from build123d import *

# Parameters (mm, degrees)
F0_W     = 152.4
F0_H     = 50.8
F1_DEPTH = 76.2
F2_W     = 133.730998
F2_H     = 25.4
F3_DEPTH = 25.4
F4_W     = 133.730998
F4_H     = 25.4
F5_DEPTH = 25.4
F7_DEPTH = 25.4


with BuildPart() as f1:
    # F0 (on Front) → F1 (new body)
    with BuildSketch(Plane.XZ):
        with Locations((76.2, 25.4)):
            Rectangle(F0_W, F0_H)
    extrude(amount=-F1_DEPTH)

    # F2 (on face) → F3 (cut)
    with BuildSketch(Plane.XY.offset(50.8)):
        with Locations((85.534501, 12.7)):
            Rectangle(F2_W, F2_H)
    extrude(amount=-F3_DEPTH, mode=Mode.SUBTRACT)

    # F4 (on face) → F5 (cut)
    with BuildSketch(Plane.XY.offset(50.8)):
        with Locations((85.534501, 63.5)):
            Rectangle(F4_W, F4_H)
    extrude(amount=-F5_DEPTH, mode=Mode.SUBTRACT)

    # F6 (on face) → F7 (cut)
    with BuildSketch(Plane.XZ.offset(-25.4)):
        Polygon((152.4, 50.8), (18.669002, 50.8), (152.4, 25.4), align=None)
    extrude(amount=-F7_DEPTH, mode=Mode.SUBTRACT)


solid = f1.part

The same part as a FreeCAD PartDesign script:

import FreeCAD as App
import Part
import Sketcher

V = App.Vector
Q = App.Units.Quantity

doc = App.newDocument("Part")
params = doc.addObject("Spreadsheet::Sheet", "Params")
for row, (alias, value) in enumerate([
    ("sketch1_width", "6 in"),
    ("sketch1_height", "2 in"),
    ("pad1_length", "3 in"),
    ("sketch2_height", "1 in"),
    ("sketch2_width", "5.2649999 in"),
    ("pocket1_length", "1 in"),
    ("sketch3_height", "1 in"),
    ("sketch3_width", "5.2649999 in"),
    ("pocket2_length", "1 in"),
    ("sketch4_height", "1 in"),
    ("sketch4_width", "5.2649999 in"),
    ("pocket3_length", "1 in"),
], start=1):
    params.set(f"A{row}", alias)
    params.set(f"B{row}", "=" + value)
    params.setAlias(f"B{row}", alias)

body = doc.addObject("PartDesign::Body", "Body")

sketch1 = body.newObject("Sketcher::SketchObject", "Sketch")
sketch1.AttachmentSupport = (doc.getObject("XZ_Plane"), [""])
sketch1.MapMode = "FlatFace"
sketch1.addGeometry([
    Part.LineSegment(V(0, 51, 0), V(0, 0, 0)),
    Part.LineSegment(V(0, 0, 0), V(152, 0, 0)),
    Part.LineSegment(V(152, 0, 0), V(152, 51, 0)),
    Part.LineSegment(V(152, 51, 0), V(0, 51, 0)),
], False)
sketch1.addConstraint([
    Sketcher.Constraint("Coincident", 0, 2, 1, 1),
    Sketcher.Constraint("Coincident", 1, 2, 2, 1),
    Sketcher.Constraint("Coincident", 2, 2, 3, 1),
    Sketcher.Constraint("Coincident", 3, 2, 0, 1),
    Sketcher.Constraint("Vertical", 0),
    Sketcher.Constraint("Horizontal", 1),
    Sketcher.Constraint("Vertical", 2),
    Sketcher.Constraint("Horizontal", 3),
    Sketcher.Constraint("Coincident", 0, 2, -1, 1),
    Sketcher.Constraint("DistanceX", 1, 1, 1, 2, Q("6 in")),
    Sketcher.Constraint("DistanceY", 0, 2, 0, 1, Q("2 in")),
])
sketch1.setExpression("Constraints[9]", "Params.sketch1_width")
sketch1.setExpression("Constraints[10]", "Params.sketch1_height")
pad1 = body.newObject("PartDesign::Pad", "Pad")
pad1.Profile = sketch1
pad1.setExpression("Length", "Params.pad1_length")
pad1.Reversed = True

sketch2 = body.newObject("Sketcher::SketchObject", "Sketch001")
sketch2.AttachmentSupport = (doc.getObject("XY_Plane"), [""])
sketch2.MapMode = "FlatFace"
sketch2.AttachmentOffset = App.Placement(V(0, 0, 2 * 25.4), App.Rotation())
sketch2.addGeometry([
    Part.LineSegment(V(19, 25, 0), V(19, 0, 0)),
    Part.LineSegment(V(19, 0, 0), V(152, 0, 0)),
    Part.LineSegment(V(152, 0, 0), V(152, 25, 0)),
    Part.LineSegment(V(152, 25, 0), V(19, 25, 0)),
], False)
sketch2.addConstraint([
    Sketcher.Constraint("Coincident", 0, 2, 1, 1),
    Sketcher.Constraint("Coincident", 1, 2, 2, 1),
    Sketcher.Constraint("Coincident", 2, 2, 3, 1),
    Sketcher.Constraint("Coincident", 3, 2, 0, 1),
    Sketcher.Constraint("Vertical", 0),
    Sketcher.Constraint("Horizontal", 1),
    Sketcher.Constraint("Vertical", 2),
    Sketcher.Constraint("Horizontal", 3),
    Sketcher.Constraint("PointOnObject", 0, 2, -1),
    Sketcher.Constraint("DistanceY", 0, 2, 0, 1, Q("1 in")),
    Sketcher.Constraint("DistanceX", -1, 1, 1, 2, Q("6 in")),
    Sketcher.Constraint("DistanceX", 1, 1, 1, 2, Q("5.2649999 in")),
])
sketch2.setExpression("Constraints[9]", "Params.sketch2_height")
sketch2.setExpression("Constraints[11]", "Params.sketch2_width")
pocket1 = body.newObject("PartDesign::Pocket", "Pocket")
pocket1.Profile = sketch2
pocket1.setExpression("Length", "Params.pocket1_length")

sketch3 = body.newObject("Sketcher::SketchObject", "Sketch002")
sketch3.AttachmentSupport = (doc.getObject("XY_Plane"), [""])
sketch3.MapMode = "FlatFace"
sketch3.AttachmentOffset = App.Placement(V(0, 0, 2 * 25.4), App.Rotation())
sketch3.addGeometry([
    Part.LineSegment(V(19, 76, 0), V(19, 51, 0)),
    Part.LineSegment(V(19, 51, 0), V(152, 51, 0)),
    Part.LineSegment(V(152, 51, 0), V(152, 76, 0)),
    Part.LineSegment(V(152, 76, 0), V(19, 76, 0)),
], False)
sketch3.addConstraint([
    Sketcher.Constraint("Coincident", 0, 2, 1, 1),
    Sketcher.Constraint("Coincident", 1, 2, 2, 1),
    Sketcher.Constraint("Coincident", 2, 2, 3, 1),
    Sketcher.Constraint("Coincident", 3, 2, 0, 1),
    Sketcher.Constraint("Vertical", 0),
    Sketcher.Constraint("Horizontal", 1),
    Sketcher.Constraint("Vertical", 2),
    Sketcher.Constraint("Horizontal", 3),
    Sketcher.Constraint("DistanceY", 0, 2, 0, 1, Q("1 in")),
    Sketcher.Constraint("DistanceY", -1, 1, 0, 2, Q("2 in")),
    Sketcher.Constraint("DistanceX", -1, 1, 1, 2, Q("6 in")),
    Sketcher.Constraint("DistanceX", 1, 1, 1, 2, Q("5.2649999 in")),
])
sketch3.setExpression("Constraints[8]", "Params.sketch3_height")
sketch3.setExpression("Constraints[11]", "Params.sketch3_width")
pocket2 = body.newObject("PartDesign::Pocket", "Pocket001")
pocket2.Profile = sketch3
pocket2.setExpression("Length", "Params.pocket2_length")

sketch4 = body.newObject("Sketcher::SketchObject", "Sketch003")
sketch4.AttachmentSupport = (doc.getObject("XZ_Plane"), [""])
sketch4.MapMode = "FlatFace"
sketch4.AttachmentOffset = App.Placement(V(0, 0, -1 * 25.4), App.Rotation())
sketch4.addGeometry([
    Part.LineSegment(V(152, 51, 0), V(19, 51, 0)),
    Part.LineSegment(V(19, 51, 0), V(152, 25, 0)),
    Part.LineSegment(V(152, 25, 0), V(152, 51, 0)),
], False)
sketch4.addConstraint([
    Sketcher.Constraint("Coincident", 0, 2, 1, 1),
    Sketcher.Constraint("Coincident", 1, 2, 2, 1),
    Sketcher.Constraint("Coincident", 2, 2, 0, 1),
    Sketcher.Constraint("Horizontal", 0),
    Sketcher.Constraint("Vertical", 2),
    Sketcher.Constraint("DistanceY", 2, 1, 2, 2, Q("1 in")),
    Sketcher.Constraint("DistanceY", -1, 1, 0, 2, Q("2 in")),
    Sketcher.Constraint("DistanceX", -1, 1, 1, 2, Q("6 in")),
    Sketcher.Constraint("DistanceX", 0, 2, 0, 1, Q("5.2649999 in")),
])
sketch4.setExpression("Constraints[5]", "Params.sketch4_height")
sketch4.setExpression("Constraints[8]", "Params.sketch4_width")
pocket3 = body.newObject("PartDesign::Pocket", "Pocket002")
pocket3.Profile = sketch4
pocket3.setExpression("Length", "Params.pocket3_length")

doc.recompute()
